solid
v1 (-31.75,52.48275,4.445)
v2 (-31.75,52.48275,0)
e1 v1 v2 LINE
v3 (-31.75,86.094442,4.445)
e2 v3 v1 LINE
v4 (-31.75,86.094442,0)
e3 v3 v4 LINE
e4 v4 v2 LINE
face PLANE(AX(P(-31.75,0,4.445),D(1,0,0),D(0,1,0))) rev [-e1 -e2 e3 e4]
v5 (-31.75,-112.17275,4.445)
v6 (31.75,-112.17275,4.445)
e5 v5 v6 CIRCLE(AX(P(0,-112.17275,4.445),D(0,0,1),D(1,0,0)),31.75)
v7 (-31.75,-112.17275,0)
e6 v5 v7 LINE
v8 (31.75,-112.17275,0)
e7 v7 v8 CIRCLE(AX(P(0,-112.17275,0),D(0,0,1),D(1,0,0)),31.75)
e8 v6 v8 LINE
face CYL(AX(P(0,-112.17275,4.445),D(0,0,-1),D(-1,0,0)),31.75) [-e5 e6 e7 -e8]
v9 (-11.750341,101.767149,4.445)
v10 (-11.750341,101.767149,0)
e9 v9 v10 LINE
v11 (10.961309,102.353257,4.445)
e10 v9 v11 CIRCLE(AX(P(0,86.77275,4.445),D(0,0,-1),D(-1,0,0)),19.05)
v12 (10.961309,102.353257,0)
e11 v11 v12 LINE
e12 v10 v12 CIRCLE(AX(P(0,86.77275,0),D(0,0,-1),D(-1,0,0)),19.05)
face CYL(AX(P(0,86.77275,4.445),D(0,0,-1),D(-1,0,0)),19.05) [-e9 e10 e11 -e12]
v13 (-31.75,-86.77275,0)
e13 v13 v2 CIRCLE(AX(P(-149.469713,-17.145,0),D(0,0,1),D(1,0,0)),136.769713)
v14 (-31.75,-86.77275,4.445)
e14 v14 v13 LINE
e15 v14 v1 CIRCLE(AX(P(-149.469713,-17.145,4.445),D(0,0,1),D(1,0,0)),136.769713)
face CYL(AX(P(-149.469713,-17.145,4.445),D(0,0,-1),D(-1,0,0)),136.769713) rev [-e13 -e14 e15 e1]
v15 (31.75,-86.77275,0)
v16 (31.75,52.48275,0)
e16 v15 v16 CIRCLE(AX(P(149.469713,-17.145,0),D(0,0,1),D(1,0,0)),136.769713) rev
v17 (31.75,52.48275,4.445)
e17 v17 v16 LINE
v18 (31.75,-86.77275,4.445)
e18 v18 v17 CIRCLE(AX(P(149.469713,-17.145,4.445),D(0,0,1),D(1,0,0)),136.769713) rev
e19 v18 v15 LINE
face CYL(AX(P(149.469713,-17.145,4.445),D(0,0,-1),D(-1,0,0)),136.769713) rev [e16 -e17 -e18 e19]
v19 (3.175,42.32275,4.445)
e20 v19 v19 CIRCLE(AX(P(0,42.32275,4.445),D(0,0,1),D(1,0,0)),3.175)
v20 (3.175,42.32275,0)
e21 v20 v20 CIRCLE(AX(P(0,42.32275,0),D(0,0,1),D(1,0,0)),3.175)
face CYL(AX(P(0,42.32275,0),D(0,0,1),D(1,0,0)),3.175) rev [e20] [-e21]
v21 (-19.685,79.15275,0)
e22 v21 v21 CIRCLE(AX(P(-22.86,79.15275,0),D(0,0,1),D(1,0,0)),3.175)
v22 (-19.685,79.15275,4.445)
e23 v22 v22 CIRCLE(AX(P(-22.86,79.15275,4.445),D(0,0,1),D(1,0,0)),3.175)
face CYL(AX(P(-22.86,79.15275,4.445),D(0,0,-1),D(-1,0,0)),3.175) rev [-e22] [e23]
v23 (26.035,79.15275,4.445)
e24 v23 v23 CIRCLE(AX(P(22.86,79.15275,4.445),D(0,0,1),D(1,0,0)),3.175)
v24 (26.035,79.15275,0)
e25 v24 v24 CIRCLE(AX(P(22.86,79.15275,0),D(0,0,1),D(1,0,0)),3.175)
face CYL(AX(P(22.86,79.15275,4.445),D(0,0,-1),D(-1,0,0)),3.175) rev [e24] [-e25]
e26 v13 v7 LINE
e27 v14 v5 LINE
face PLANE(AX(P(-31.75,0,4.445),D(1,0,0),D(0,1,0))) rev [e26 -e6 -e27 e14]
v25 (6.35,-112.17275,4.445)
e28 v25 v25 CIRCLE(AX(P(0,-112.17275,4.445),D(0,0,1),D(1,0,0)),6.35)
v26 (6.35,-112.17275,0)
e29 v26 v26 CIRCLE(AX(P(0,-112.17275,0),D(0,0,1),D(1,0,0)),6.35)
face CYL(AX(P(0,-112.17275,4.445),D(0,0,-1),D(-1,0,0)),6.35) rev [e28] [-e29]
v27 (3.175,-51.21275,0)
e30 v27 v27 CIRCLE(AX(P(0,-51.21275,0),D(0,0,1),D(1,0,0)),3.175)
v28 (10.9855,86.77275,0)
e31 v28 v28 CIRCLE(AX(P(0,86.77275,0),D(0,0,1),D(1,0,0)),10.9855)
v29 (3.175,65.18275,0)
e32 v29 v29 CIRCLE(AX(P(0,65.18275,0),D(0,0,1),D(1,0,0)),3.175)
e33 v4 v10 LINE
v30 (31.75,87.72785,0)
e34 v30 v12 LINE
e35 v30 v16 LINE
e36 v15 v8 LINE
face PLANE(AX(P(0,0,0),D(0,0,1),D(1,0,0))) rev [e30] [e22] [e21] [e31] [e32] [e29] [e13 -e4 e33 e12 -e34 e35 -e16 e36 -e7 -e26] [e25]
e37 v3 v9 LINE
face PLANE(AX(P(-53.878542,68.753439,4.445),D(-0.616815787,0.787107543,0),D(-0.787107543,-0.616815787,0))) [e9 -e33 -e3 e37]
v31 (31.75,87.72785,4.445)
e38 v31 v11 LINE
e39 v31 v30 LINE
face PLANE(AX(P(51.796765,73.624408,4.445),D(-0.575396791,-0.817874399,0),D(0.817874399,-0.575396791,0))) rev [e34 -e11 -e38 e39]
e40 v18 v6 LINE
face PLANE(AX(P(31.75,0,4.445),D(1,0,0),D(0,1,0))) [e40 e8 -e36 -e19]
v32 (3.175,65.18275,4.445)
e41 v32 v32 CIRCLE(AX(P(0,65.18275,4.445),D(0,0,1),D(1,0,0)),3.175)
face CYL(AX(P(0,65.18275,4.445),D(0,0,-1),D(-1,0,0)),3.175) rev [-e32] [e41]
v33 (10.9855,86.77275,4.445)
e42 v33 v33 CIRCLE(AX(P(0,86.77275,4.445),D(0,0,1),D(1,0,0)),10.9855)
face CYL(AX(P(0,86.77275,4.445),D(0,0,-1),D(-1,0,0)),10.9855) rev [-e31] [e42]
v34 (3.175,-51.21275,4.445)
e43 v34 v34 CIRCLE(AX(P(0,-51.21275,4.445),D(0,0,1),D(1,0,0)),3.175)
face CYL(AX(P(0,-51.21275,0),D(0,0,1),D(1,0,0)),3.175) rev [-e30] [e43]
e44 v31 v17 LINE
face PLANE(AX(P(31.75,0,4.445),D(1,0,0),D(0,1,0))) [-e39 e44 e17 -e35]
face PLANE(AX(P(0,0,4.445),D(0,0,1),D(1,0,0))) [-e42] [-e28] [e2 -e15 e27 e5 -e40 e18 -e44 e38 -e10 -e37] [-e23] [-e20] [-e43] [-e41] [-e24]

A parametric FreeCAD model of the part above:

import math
import FreeCAD as App
import Part
import Sketcher
from FreeCAD import Vector
Q = App.Units.Quantity

doc = App.newDocument("Part")
params = doc.addObject("Spreadsheet::Sheet", "Params")
for row, (alias, value) in enumerate([
    ("sketch1_diameter", "0.5 in"),
    ("sketch1_diameter2", "0.25 in"),
    ("sketch1_height", "1 in"),
    ("sketch1_radius", "1.25 in"),
    ("sketch1_diameter3", "0.865 in"),
    ("pad1_length", "0.175 in"),
    ("sketch2_diameter", "0.25 in"),
    ("sketch3_radius", "0.75 in"),
    ("sketch3_width", "2.5 in"),
], start=1):
    params.set(f"A{row}", alias)
    params.set(f"B{row}", "=" + value)
    params.setAlias(f"B{row}", alias)

body = doc.addObject("PartDesign::Body", "Body")

sketch1 = body.newObject("Sketcher::SketchObject", "Sketch")
sketch1.AttachmentSupport = (doc.getObject("XY_Plane"), [""])
sketch1.MapMode = "FlatFace"
sketch1.addGeometry([
    Part.LineSegment(Vector(31.75, 112.17275, 0), Vector(-31.75, 112.17275, 0)),
    Part.LineSegment(Vector(-31.75, 112.17275, 0), Vector(-31.75, 52.48275, 0)),
    Part.ArcOfCircle(Part.Circle(Vector(-149.469713, -17.145, 0), Vector(0, 0, 1), 136.769713), math.radians(-30.603067), math.radians(30.603067)),
    Part.LineSegment(Vector(-31.75, -86.77275, 0), Vector(-31.75, -112.17275, 0)),
    Part.ArcOfCircle(Part.Circle(Vector(0, -112.17275, 0), Vector(0, 0, 1), 31.75), math.radians(180), math.radians(360)),
    Part.LineSegment(Vector(31.75, -112.17275, 0), Vector(31.75, -86.77275, 0)),
    Part.ArcOfCircle(Part.Circle(Vector(149.469713, -17.145, 0), Vector(0, 0, 1), 136.769713), math.radians(149.396933), math.radians(210.603067)),
    Part.LineSegment(Vector(31.75, 52.48275, 0), Vector(31.75, 112.17275, 0)),
    Part.Circle(Vector(0, -112.17275, 0), Vector(0, 0, 1), 6.35),
    Part.Circle(Vector(-22.86, 79.15275, 0), Vector(0, 0, 1), 3.175),
    Part.Circle(Vector(0, 65.18275, 0), Vector(0, 0, 1), 3.175),
    Part.Circle(Vector(0, 86.77275, 0), Vector(0, 0, 1), 10.9855),
    Part.Circle(Vector(22.86, 79.15275, 0), Vector(0, 0, 1), 3.175),
], False)
sketch1.addConstraint([
    Sketcher.Constraint("Coincident", 0, 2, 1, 1),
    Sketcher.Constraint("Coincident", 1, 2, 2, 2),
    Sketcher.Constraint("Coincident", 2, 1, 3, 1),
    Sketcher.Constraint("Tangent", 3, 2, 4, 1),
    Sketcher.Constraint("Tangent", 4, 2, 5, 1),
    Sketcher.Constraint("Coincident", 5, 2, 6, 2),
    Sketcher.Constraint("Coincident", 6, 1, 7, 1),
    Sketcher.Constraint("Coincident", 7, 2, 0, 1),
    Sketcher.Constraint("Horizontal", 0),
    Sketcher.Constraint("Vertical", 1),
    Sketcher.Constraint("Vertical", 3),
    Sketcher.Constraint("Vertical", 5),
    Sketcher.Constraint("Vertical", 7),
    Sketcher.Constraint("Coincident", 8, 3, 4, 3),
    Sketcher.Constraint("Equal", 2, 6),
    Sketcher.Constraint("Equal", 9, 10),
    Sketcher.Constraint("Equal", 10, 12),
    Sketcher.Constraint("Symmetric", 0, 2, 4, 2, -1, 1),
    Sketcher.Constraint("Symmetric", 2, 3, 6, 3, -2),
    Sketcher.Constraint("Symmetric", 9, 3, 12, 3, -2),
    Sketcher.Constraint("PointOnObject", 4, 3, -2),
    Sketcher.Constraint("PointOnObject", 10, 3, -2),
    Sketcher.Constraint("PointOnObject", 11, 3, -2),
    Sketcher.Constraint("Horizontal", 1, 2, 6, 1),
    Sketcher.Constraint("Diameter", 8, Q("0.5 in")),
    Sketcher.Constraint("Diameter", 9, Q("0.25 in")),
    Sketcher.Constraint("DistanceY", 3, 2, 3, 1, Q("1 in")),
    Sketcher.Constraint("Radius", 4, Q("1.25 in")),
    Sketcher.Constraint("Diameter", 11, Q("0.865 in")),
    Sketcher.Constraint("DistanceY", 11, 3, 0, 2, Q("1 in")),
    Sketcher.Constraint("DistanceY", 1, 2, 1, 1, Q("2.35 in")),
    Sketcher.Constraint("DistanceX", 9, 3, -1, 1, Q("0.9 in")),
    Sketcher.Constraint("DistanceY", 9, 3, 11, 3, Q("0.3 in")),
    Sketcher.Constraint("DistanceY", 1, 2, 10, 3, Q("0.5 in")),
    Sketcher.Constraint("Radius", 2, Q("136.769713 mm")),
    Sketcher.Constraint("DistanceY", 4, 3, 9, 3, Q("7.5325 in")),
])
sketch1.setExpression("Constraints[24]", "Params.sketch1_diameter")
sketch1.setExpression("Constraints[25]", "Params.sketch1_diameter2")
sketch1.setExpression("Constraints[26]", "Params.sketch1_height")
sketch1.setExpression("Constraints[27]", "Params.sketch1_radius")
sketch1.setExpression("Constraints[28]", "Params.sketch1_diameter3")
pad1 = body.newObject("PartDesign::Pad", "Pad")
pad1.Profile = sketch1
pad1.setExpression("Length", "Params.pad1_length")

sketch2 = body.newObject("Sketcher::SketchObject", "Sketch001")
sketch2.AttachmentSupport = (doc.getObject("XY_Plane"), [""])
sketch2.MapMode = "FlatFace"
sketch2.AttachmentOffset = App.Placement(Vector(0, 0, 0.175 * 25.4), App.Rotation())
sketch2.addGeometry([
    Part.Circle(Vector(0, 42.32275, 0), Vector(0, 0, 1), 3.175),
    Part.Circle(Vector(0, -51.21275, 0), Vector(0, 0, 1), 3.175),
], False)
sketch2.addConstraint([
    Sketcher.Constraint("Equal", 0, 1),
    Sketcher.Constraint("PointOnObject", 0, 3, -2),
    Sketcher.Constraint("PointOnObject", 1, 3, -2),
    Sketcher.Constraint("Diameter", 0, Q("0.25 in")),
    Sketcher.Constraint("DistanceY", 1, 3, 0, 3, Q("3.6825 in")),
    Sketcher.Constraint("DistanceY", -1, 1, 0, 3, Q("42.32275 mm")),
])
sketch2.setExpression("Constraints[3]", "Params.sketch2_diameter")
pocket1 = body.newObject("PartDesign::Pocket", "Pocket")
pocket1.Profile = sketch2
pocket1.Type = "ThroughAll"

sketch3 = body.newObject("Sketcher::SketchObject", "Sketch002")
sketch3.AttachmentSupport = (doc.getObject("XY_Plane"), [""])
sketch3.MapMode = "FlatFace"
sketch3.addGeometry([
    Part.LineSegment(Vector(31.75, 87.72785, 0), Vector(10.961309, 102.353257, 0)),
    Part.ArcOfCircle(Part.Circle(Vector(0, 86.77275, 0), Vector(0, 0, 1), 19.05), math.radians(54.872576), math.radians(128.083977)),
    Part.LineSegment(Vector(-11.750341, 101.767149, 0), Vector(-31.75, 86.094442, 0)),
    Part.LineSegment(Vector(-31.75, 86.094442, 0), Vector(-31.75, 114.970728, 0)),
    Part.LineSegment(Vector(-31.75, 114.970728, 0), Vector(31.75, 114.970728, 0)),
    Part.LineSegment(Vector(31.75, 114.970728, 0), Vector(31.75, 87.72785, 0)),
], False)
sketch3.addConstraint([
    Sketcher.Constraint("Tangent", 0, 2, 1, 1),
    Sketcher.Constraint("Tangent", 1, 2, 2, 1),
    Sketcher.Constraint("Coincident", 2, 2, 3, 1),
    Sketcher.Constraint("Coincident", 3, 2, 4, 1),
    Sketcher.Constraint("Coincident", 4, 2, 5, 1),
    Sketcher.Constraint("Coincident", 5, 2, 0, 1),
    Sketcher.Constraint("Vertical", 3),
    Sketcher.Constraint("Horizontal", 4),
    Sketcher.Constraint("Vertical", 5),
    Sketcher.Constraint("PointOnObject", 1, 3, -2),
    Sketcher.Constraint("Radius", 1, Q("0.75 in")),
    Sketcher.Constraint("DistanceX", 4, 1, 4, 2, Q("2.5 in")),
    Sketcher.Constraint("DistanceX", 2, 2, -1, 1, Q("1.25 in")),
    Sketcher.Constraint("DistanceY", 5, 2, 5, 1, Q("27.242878 mm")),
    Sketcher.Constraint("DistanceY", 1, 3, 1, 2, Q("14.994399 mm")),
    Sketcher.Constraint("DistanceY", 1, 3, 5, 2, Q("0.9551 mm")),
    Sketcher.Constraint("DistanceY", -1, 1, 1, 3, Q("86.77275 mm")),
])
sketch3.setExpression("Constraints[10]", "Params.sketch3_radius")
sketch3.setExpression("Constraints[11]", "Params.sketch3_width")
pocket2 = body.newObject("PartDesign::Pocket", "Pocket001")
pocket2.Profile = sketch3
pocket2.Type = "ThroughAll"
pocket2.Reversed = True

doc.recompute()
